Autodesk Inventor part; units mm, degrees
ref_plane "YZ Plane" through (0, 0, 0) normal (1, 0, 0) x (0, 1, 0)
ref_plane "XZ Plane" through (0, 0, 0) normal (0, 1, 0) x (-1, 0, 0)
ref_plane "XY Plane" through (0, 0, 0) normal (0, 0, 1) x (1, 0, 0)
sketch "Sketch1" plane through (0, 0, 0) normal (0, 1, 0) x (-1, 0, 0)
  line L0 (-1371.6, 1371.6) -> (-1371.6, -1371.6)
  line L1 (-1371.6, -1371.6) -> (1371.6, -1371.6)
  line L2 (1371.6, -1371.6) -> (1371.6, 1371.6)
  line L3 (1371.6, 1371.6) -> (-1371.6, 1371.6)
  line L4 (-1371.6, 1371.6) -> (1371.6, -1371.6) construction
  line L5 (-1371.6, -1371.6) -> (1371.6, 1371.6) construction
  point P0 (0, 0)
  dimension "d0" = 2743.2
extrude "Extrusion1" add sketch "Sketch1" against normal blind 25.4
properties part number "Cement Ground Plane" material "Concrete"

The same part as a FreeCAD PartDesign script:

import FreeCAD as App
import Part
import Sketcher
Q = App.Units.Quantity


def add_polygon(sketch, points):
    """Adds a closed chain of lines whose ends are joined by coincident constraints."""
    first, n = sketch.GeometryCount, len(points)
    for a, b in zip(points, points[1:] + points[:1]):
        sketch.addGeometry(Part.LineSegment(App.Vector(*a, 0), App.Vector(*b, 0)), False)
    for i in range(n):
        sketch.addConstraint(Sketcher.Constraint("Coincident", first + i, 2, first + (i + 1) % n, 1))

doc = App.newDocument("Part")
body = doc.addObject("PartDesign::Body", "Body")

sketch1 = doc.addObject("Sketcher::SketchObject", "Sketch")
body.addObject(sketch1)
sketch1.AttachmentSupport = (doc.XZ_Plane, [""])
sketch1.MapMode = "FlatFace"
add_polygon(sketch1, [(-1371.6, 1371.6), (1371.6, 1371.6), (1371.6, -1371.6), (-1371.6, -1371.6)])
sketch1.addConstraint([
    Sketcher.Constraint("Horizontal", 0),
    Sketcher.Constraint("Vertical", 1),
    Sketcher.Constraint("Horizontal", 2),
    Sketcher.Constraint("Vertical", 3),
    Sketcher.Constraint("Symmetric", 0, 2, 2, 2, -1, 1),
    Sketcher.Constraint("Equal", 2, 1),
    Sketcher.Constraint("DistanceX", 0, 1, 0, 2, Q("108 in")),
])
pad1 = doc.addObject("PartDesign::Pad", "Pad")
body.addObject(pad1)
pad1.Profile = sketch1
pad1.Length = Q("1 in")

doc.recompute()
